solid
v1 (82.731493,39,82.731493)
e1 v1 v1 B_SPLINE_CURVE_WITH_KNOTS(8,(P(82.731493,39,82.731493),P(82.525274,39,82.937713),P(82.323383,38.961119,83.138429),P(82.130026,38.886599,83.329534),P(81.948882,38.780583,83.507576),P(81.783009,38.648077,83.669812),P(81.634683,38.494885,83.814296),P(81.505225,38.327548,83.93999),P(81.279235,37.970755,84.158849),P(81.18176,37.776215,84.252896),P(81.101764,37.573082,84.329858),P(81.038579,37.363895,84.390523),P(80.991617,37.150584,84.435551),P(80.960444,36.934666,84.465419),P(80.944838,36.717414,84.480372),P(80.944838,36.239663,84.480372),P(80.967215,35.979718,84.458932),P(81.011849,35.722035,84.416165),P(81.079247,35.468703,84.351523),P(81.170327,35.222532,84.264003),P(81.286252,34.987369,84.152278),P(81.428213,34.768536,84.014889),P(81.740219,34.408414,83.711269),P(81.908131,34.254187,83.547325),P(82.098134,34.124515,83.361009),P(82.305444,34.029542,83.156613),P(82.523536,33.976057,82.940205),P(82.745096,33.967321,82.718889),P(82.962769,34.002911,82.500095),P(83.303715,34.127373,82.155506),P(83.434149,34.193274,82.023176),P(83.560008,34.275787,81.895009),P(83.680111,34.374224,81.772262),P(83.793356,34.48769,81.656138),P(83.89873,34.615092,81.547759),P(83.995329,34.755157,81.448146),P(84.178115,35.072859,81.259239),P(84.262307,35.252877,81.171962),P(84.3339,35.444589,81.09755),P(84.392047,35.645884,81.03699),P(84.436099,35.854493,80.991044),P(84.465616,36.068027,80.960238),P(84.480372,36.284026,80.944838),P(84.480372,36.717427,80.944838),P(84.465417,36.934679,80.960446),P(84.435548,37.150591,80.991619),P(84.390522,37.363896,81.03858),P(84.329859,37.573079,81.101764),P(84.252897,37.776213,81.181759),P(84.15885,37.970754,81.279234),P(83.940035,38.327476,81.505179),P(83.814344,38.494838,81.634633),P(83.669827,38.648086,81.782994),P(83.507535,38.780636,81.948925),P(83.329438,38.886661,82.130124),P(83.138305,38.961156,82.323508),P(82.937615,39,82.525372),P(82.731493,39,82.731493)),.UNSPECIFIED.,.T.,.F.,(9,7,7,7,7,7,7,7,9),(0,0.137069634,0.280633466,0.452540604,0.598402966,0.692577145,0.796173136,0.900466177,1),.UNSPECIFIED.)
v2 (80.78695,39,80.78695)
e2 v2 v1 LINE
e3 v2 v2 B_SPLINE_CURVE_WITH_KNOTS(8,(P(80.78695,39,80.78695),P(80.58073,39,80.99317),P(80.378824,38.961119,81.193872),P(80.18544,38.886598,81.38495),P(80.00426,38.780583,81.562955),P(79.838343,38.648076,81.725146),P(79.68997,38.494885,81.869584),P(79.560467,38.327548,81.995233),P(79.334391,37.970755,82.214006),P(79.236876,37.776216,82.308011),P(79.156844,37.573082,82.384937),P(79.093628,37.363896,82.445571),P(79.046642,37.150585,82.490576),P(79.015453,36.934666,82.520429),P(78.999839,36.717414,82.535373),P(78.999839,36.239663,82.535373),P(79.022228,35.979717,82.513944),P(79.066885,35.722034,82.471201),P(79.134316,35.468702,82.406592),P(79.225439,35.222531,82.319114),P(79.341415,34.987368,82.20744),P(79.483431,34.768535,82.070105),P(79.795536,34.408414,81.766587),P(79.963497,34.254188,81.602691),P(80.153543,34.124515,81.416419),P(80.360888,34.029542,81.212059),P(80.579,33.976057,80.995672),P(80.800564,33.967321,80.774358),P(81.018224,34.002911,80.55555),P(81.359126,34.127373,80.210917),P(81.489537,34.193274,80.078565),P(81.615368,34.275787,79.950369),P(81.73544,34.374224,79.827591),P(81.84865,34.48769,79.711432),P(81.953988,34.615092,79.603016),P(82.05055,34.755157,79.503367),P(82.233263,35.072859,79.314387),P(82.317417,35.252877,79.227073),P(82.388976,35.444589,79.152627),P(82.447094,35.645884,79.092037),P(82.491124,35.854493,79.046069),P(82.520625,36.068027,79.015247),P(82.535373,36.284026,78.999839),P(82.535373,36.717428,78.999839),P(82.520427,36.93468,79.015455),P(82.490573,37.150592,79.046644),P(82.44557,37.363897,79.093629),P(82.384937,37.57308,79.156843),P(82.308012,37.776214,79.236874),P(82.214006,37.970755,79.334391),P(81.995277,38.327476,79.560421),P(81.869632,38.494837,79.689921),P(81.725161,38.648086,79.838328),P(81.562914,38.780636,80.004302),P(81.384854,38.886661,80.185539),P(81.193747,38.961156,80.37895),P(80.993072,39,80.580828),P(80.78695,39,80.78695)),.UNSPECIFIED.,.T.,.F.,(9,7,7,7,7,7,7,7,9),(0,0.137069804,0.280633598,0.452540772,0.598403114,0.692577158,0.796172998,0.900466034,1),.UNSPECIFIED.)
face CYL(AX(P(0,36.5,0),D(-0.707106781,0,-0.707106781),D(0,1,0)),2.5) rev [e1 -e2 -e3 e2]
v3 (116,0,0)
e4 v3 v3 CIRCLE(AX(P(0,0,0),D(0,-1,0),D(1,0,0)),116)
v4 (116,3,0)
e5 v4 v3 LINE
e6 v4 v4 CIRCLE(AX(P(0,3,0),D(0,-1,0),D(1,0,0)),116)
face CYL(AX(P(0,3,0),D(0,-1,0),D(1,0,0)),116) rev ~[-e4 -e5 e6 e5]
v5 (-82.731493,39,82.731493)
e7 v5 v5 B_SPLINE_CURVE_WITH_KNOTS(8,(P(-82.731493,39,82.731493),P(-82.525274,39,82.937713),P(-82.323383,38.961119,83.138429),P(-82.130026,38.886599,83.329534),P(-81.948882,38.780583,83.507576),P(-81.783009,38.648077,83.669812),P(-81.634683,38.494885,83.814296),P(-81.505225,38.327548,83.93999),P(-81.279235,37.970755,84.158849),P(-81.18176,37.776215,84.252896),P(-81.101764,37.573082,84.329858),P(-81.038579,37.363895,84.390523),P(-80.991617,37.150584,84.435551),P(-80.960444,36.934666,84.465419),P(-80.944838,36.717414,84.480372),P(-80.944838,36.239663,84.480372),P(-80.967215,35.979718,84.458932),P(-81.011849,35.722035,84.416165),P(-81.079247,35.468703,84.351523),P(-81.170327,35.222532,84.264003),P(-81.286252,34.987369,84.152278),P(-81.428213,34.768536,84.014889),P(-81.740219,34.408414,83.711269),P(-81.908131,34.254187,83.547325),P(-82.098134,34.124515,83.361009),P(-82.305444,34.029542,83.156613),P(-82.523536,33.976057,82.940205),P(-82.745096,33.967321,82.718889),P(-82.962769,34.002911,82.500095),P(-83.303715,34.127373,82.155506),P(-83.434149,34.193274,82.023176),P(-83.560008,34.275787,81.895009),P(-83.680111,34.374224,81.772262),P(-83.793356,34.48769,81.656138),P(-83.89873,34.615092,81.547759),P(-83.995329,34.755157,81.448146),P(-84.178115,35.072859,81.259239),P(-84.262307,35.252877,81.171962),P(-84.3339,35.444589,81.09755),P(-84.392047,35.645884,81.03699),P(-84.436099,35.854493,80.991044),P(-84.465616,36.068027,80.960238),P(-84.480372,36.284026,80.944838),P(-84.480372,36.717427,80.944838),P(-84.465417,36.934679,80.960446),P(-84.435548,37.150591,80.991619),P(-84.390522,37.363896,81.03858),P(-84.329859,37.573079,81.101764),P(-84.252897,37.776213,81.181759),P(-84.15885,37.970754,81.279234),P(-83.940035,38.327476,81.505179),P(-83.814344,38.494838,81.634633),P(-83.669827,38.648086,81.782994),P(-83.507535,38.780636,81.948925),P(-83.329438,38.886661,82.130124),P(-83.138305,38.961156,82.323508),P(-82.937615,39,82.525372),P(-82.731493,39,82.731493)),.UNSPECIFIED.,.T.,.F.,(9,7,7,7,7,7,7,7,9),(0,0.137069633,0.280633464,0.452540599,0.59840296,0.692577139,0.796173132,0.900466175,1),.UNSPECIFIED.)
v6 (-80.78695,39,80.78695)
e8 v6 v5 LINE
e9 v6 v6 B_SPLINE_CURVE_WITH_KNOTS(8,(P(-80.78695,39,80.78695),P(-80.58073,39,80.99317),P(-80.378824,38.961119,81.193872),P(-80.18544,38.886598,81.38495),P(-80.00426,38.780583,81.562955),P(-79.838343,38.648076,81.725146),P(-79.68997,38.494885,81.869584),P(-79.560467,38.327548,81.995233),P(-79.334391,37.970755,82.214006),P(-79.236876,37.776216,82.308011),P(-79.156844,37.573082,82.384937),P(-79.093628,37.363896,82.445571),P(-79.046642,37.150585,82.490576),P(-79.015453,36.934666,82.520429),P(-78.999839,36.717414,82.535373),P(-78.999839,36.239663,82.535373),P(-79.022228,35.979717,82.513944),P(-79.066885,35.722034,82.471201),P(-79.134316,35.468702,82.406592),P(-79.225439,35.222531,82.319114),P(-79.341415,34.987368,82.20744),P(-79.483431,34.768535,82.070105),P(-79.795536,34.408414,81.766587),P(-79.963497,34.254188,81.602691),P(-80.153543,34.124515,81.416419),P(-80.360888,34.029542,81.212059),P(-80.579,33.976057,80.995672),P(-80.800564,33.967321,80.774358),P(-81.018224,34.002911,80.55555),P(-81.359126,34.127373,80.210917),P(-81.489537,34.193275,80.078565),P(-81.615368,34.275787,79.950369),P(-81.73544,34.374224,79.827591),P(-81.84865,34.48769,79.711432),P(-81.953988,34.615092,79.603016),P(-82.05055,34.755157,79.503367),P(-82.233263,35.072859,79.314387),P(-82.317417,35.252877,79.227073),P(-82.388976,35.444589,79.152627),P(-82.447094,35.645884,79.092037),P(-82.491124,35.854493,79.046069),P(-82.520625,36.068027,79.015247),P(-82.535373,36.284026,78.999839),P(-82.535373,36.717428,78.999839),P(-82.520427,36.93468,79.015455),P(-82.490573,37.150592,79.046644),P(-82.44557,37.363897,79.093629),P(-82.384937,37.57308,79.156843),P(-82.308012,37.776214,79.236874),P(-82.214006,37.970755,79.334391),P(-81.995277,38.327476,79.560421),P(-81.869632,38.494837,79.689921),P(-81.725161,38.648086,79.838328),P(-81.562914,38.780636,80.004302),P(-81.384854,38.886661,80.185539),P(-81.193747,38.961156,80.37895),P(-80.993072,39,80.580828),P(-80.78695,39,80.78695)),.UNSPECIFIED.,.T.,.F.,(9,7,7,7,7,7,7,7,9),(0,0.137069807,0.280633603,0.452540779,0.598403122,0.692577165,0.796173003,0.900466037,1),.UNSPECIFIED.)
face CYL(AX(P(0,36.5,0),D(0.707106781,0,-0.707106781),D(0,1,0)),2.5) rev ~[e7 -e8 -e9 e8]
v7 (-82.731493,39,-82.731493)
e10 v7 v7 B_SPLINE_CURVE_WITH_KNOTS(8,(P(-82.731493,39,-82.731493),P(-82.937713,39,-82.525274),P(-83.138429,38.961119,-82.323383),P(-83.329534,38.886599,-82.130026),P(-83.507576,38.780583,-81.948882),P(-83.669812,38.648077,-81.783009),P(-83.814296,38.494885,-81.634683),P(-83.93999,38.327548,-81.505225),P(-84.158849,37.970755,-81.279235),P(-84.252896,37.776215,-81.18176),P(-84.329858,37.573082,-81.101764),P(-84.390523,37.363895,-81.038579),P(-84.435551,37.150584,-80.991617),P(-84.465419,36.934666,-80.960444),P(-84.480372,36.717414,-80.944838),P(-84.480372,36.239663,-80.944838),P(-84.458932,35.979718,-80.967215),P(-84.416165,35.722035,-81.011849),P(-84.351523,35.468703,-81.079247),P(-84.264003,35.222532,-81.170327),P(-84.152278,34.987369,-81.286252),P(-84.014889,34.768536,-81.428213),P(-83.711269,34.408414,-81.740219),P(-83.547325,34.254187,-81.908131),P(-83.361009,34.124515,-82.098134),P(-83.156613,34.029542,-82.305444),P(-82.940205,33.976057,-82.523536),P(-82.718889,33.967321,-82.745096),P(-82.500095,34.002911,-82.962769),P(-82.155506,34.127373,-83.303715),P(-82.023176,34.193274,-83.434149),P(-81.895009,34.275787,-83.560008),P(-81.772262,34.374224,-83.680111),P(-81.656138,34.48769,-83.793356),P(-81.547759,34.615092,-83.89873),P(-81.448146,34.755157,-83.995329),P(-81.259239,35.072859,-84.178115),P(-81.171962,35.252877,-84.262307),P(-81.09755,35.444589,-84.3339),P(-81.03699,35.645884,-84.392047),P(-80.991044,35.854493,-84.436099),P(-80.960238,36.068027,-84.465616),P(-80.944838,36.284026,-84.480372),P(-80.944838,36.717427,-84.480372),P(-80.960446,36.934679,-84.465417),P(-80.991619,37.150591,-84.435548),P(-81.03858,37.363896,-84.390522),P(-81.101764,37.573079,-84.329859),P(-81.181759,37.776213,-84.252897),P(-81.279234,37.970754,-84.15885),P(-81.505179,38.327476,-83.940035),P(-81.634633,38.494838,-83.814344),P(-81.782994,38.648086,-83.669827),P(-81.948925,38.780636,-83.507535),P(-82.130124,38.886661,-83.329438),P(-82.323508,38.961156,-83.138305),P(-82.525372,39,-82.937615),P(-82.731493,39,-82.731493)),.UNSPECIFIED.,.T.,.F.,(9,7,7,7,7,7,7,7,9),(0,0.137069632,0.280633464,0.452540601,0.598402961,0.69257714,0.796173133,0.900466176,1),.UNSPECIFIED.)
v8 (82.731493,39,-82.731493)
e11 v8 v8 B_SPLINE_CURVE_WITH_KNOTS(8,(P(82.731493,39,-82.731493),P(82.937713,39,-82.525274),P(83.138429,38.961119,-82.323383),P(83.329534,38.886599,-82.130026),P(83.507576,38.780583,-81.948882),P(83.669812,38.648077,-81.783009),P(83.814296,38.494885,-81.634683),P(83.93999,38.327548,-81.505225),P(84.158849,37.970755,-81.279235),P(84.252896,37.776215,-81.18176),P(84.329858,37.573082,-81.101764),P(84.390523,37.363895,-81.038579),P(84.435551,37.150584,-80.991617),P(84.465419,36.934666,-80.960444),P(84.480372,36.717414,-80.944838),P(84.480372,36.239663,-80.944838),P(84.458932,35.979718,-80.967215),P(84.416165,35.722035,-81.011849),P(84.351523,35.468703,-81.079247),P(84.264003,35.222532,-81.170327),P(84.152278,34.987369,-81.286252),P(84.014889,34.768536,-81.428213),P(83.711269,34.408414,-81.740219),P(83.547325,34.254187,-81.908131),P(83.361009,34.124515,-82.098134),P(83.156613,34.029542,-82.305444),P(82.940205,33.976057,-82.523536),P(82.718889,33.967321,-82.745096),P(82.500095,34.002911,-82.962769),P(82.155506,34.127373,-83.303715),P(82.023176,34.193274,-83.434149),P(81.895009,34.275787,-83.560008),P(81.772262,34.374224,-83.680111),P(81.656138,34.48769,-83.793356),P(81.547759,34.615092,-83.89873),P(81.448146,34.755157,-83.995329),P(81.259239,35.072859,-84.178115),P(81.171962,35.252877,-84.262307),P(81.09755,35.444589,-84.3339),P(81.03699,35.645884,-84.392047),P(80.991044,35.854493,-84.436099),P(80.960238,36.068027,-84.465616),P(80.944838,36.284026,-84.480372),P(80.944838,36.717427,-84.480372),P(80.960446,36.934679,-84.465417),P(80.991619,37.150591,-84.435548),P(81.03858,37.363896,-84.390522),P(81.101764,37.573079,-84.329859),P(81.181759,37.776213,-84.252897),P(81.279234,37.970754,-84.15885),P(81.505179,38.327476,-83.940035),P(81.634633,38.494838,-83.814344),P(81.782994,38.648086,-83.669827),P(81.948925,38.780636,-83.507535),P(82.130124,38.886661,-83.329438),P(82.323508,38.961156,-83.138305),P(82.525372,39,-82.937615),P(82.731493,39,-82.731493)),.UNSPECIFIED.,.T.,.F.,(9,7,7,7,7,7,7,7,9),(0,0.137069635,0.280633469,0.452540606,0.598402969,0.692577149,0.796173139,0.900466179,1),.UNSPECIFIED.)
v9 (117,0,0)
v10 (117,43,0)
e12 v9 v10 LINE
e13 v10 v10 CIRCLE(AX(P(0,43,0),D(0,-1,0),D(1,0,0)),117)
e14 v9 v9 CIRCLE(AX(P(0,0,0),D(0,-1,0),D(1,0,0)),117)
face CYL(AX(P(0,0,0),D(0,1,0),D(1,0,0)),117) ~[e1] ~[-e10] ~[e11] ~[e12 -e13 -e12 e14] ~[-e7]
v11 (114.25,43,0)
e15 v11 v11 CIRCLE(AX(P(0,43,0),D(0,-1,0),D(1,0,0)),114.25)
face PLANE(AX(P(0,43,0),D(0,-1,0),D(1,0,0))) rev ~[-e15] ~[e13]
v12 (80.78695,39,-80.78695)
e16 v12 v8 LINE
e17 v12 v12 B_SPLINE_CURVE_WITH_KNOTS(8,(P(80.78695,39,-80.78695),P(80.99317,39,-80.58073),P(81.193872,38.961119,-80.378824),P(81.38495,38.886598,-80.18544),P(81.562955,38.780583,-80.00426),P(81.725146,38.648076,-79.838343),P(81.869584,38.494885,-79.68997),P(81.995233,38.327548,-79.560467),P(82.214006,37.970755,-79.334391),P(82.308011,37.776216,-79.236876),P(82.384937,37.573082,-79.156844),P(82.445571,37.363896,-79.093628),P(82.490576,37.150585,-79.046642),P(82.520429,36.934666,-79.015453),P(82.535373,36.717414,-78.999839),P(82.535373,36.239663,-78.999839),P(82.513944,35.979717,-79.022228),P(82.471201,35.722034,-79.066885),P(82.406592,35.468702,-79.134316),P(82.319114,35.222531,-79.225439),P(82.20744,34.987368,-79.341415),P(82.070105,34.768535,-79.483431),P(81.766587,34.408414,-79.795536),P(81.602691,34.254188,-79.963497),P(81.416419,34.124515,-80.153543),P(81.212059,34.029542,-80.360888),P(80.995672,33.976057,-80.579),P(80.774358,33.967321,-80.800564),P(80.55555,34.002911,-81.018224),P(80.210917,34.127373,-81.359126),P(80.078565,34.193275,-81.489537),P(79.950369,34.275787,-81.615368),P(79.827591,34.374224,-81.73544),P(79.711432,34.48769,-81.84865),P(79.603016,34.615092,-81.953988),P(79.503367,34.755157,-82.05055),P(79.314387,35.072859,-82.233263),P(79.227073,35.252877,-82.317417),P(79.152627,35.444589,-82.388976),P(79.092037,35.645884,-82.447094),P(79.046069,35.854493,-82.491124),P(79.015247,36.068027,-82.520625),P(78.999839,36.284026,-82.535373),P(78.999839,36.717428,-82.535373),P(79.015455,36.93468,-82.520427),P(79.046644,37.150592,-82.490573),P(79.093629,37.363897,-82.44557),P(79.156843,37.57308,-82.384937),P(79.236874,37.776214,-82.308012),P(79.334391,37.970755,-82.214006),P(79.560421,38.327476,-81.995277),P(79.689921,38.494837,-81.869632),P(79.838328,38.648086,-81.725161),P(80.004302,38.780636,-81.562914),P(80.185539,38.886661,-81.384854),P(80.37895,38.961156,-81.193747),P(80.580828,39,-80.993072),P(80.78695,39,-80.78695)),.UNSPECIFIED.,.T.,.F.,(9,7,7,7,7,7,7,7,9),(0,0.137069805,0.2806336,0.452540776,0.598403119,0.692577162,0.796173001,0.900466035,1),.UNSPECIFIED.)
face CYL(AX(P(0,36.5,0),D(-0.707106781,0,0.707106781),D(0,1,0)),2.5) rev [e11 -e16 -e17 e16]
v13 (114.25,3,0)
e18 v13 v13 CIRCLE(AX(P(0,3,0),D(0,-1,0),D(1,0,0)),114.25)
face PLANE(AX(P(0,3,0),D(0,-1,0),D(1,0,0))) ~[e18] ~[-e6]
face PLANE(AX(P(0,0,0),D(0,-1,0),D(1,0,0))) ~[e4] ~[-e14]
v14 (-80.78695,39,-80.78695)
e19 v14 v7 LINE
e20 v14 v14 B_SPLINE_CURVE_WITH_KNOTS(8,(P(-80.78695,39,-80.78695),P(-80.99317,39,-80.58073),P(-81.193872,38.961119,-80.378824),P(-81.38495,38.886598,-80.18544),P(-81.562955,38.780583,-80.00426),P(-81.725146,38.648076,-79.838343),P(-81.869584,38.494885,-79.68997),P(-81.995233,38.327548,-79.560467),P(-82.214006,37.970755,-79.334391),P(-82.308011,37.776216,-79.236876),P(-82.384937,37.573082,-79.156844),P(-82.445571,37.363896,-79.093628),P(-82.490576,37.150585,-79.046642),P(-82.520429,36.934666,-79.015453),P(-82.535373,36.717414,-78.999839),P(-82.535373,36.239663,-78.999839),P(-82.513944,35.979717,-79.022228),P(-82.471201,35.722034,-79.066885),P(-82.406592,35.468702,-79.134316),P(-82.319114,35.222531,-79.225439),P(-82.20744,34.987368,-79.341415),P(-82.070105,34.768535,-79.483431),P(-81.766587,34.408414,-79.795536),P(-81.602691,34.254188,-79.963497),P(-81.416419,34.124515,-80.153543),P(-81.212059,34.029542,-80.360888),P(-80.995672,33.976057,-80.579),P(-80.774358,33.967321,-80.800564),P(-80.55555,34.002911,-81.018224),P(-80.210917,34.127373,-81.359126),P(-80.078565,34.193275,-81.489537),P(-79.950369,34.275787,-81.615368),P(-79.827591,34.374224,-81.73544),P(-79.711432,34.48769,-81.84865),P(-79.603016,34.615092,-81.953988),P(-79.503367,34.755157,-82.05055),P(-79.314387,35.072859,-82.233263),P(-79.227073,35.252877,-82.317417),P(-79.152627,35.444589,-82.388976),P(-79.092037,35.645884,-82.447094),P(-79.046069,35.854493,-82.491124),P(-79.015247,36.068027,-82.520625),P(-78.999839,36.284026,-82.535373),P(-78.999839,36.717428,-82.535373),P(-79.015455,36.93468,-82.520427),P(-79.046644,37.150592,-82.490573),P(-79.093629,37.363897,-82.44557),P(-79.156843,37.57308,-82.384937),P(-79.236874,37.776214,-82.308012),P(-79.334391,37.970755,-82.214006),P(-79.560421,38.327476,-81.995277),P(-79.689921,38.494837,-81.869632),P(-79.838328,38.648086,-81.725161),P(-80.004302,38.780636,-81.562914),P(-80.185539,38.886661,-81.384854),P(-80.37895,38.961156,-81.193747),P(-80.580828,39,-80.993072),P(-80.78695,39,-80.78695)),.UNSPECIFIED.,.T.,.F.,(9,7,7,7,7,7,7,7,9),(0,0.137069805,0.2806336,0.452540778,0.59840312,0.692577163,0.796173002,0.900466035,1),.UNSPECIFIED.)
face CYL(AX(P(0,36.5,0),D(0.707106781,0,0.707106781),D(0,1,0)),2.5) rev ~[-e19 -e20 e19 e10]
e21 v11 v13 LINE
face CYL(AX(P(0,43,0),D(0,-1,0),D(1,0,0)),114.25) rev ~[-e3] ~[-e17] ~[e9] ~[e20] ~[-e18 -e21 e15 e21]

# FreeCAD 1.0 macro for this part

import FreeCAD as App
import Part
import Sketcher

V = App.Vector
Q = App.Units.Quantity

doc = App.newDocument("Part")
body = doc.addObject("PartDesign::Body", "Body")

# Sketch on XY plane
sketch1 = doc.addObject("Sketcher::SketchObject", "Sketch")
body.addObject(sketch1)
sketch1.AttachmentSupport = (doc.XY_Plane, [""])
sketch1.MapMode = "FlatFace"
sketch1.addGeometry([
    Part.LineSegment(V(116, 0, 0), V(117, 0, 0)),  # 0
    Part.LineSegment(V(117, 0, 0), V(117, 43, 0)),  # 1
    Part.LineSegment(V(117, 43, 0), V(114.2, 43, 0)),  # 2
    Part.LineSegment(V(114.2, 43, 0), V(114.2, 3, 0)),  # 3
    Part.LineSegment(V(114.2, 3, 0), V(116, 3, 0)),  # 4
    Part.LineSegment(V(116, 3, 0), V(116, 0, 0)),  # 5
], False)
sketch1.addConstraint([
    Sketcher.Constraint("Coincident", 0, 2, 1, 1),
    Sketcher.Constraint("Coincident", 1, 2, 2, 1),
    Sketcher.Constraint("Coincident", 2, 2, 3, 1),
    Sketcher.Constraint("Coincident", 3, 2, 4, 1),
    Sketcher.Constraint("Coincident", 4, 2, 5, 1),
    Sketcher.Constraint("Coincident", 5, 2, 0, 1),
    Sketcher.Constraint("Horizontal", 0),
    Sketcher.Constraint("Vertical", 1),
    Sketcher.Constraint("Horizontal", 2),
    Sketcher.Constraint("Vertical", 3),
    Sketcher.Constraint("Horizontal", 4),
    Sketcher.Constraint("Vertical", 5),
    Sketcher.Constraint("PointOnObject", 0, 2, -1),
    Sketcher.Constraint("DistanceX", 0, 1, 0, 2, Q("1 mm")),
    Sketcher.Constraint("DistanceY", 5, 2, 5, 1, Q("3 mm")),
    Sketcher.Constraint("DistanceY", 1, 1, 1, 2, Q("43 mm")),
    Sketcher.Constraint("DistanceX", -1, 1, 0, 2, Q("117 mm")),
    Sketcher.Constraint("DistanceX", 2, 2, 2, 1, Q("2.75 mm")),
])
revolution = doc.addObject("PartDesign::Revolution", "Revolution")
body.addObject(revolution)
revolution.Profile = sketch1
revolution.ReferenceAxis = (sketch1, ["V_Axis"])
revolution.Angle = 360

# Sketch on an angled plane
sketch2 = doc.addObject("Sketcher::SketchObject", "Sketch001")
body.addObject(sketch2)
sketch2.Placement = App.Placement(V(0, 0, 0), App.Rotation(V(0, 1, 0), V(0.707106781, 0, 0.707106781), V(0.707106781, 0, -0.707106781), "ZXY"))
sketch2.addGeometry(Part.Circle(V(36.5, 0, 0), V(0, 0, 1), 2.5), False)
sketch2.addConstraint([
    Sketcher.Constraint("PointOnObject", 0, 3, -1),
    Sketcher.Constraint("Diameter", 0, Q("5 mm")),
    Sketcher.Constraint("DistanceX", -1, 1, 0, 3, Q("36.5 mm")),
])
pocket1 = doc.addObject("PartDesign::Pocket", "Pocket")
body.addObject(pocket1)
pocket1.Profile = sketch2
pocket1.Type = "ThroughAll"
pocket1.Midplane = True
doc.recompute()

polarpattern = doc.addObject("PartDesign::PolarPattern", "PolarPattern")
body.addObject(polarpattern)
polarpattern.Originals = [pocket1]
polarpattern.Axis = (doc.Y_Axis, [""])
polarpattern.Angle = 360
polarpattern.Occurrences = 4
body.Tip = polarpattern

doc.recompute()
